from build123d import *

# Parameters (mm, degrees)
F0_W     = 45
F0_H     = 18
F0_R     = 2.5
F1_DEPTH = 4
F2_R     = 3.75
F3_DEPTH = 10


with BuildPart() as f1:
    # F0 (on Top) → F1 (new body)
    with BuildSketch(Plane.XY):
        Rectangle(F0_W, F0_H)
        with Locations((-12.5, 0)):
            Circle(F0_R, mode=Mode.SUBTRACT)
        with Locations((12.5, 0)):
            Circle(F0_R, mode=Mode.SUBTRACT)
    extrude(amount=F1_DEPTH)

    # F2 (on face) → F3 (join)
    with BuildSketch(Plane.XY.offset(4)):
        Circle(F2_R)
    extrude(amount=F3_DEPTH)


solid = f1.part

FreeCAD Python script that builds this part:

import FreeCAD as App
import Part
import Sketcher
from FreeCAD import Vector


def add_polygon(sketch, points):
    """Adds a closed chain of lines whose ends are joined by coincident constraints."""
    first, n = sketch.GeometryCount, len(points)
    for a, b in zip(points, points[1:] + points[:1]):
        sketch.addGeometry(Part.LineSegment(App.Vector(*a, 0), App.Vector(*b, 0)), False)
    for i in range(n):
        sketch.addConstraint(Sketcher.Constraint("Coincident", first + i, 2, first + (i + 1) % n, 1))

doc = App.newDocument("Part")
params = doc.addObject("Spreadsheet::Sheet", "Params")
for row, (alias, value) in enumerate([
    ("sketch1_diameter", "5 mm"),
    ("sketch1_width", "45 mm"),
    ("sketch1_height", "18 mm"),
    ("pad1_length", "4 mm"),
    ("sketch2_diameter", "7.5 mm"),
    ("pad2_length", "10 mm"),
], start=1):
    params.set(f"A{row}", alias)
    params.set(f"B{row}", "=" + value)
    params.setAlias(f"B{row}", alias)

body = doc.addObject("PartDesign::Body", "Body")

# Sketch on XY plane
sketch1 = doc.addObject("Sketcher::SketchObject", "Sketch")
body.addObject(sketch1)
sketch1.AttachmentSupport = (doc.XY_Plane, [""])
sketch1.MapMode = "FlatFace"
add_polygon(sketch1, [(-22.5, 9), (-22.5, -9), (22.5, -9), (22.5, 9)])  # lines 0-3
sketch1.addGeometry(Part.Circle(Vector(-12.5, 0, 0), Vector(0, 0, 1), 2.5), False)  # 4
sketch1.addGeometry(Part.Circle(Vector(12.5, 0, 0), Vector(0, 0, 1), 2.5), False)  # 5
sketch1.addConstraint([
    Sketcher.Constraint("Vertical", 0),
    Sketcher.Constraint("Horizontal", 1),
    Sketcher.Constraint("Vertical", 2),
    Sketcher.Constraint("Horizontal", 3),
    Sketcher.Constraint("Equal", 4, 5),
    Sketcher.Constraint("Symmetric", 4, 3, 5, 3, -1, 1),
    Sketcher.Constraint("Symmetric", 0, 2, 2, 2, -1, 1),
    Sketcher.Constraint("PointOnObject", 4, 3, -1),
    Sketcher.Constraint("Diameter", 4, 5.0),
    Sketcher.Constraint("DistanceX", 1, 1, 1, 2, 45.0),
    Sketcher.Constraint("DistanceY", 0, 2, 0, 1, 18.0),
    Sketcher.Constraint("DistanceX", 4, 3, 5, 3, 25.0),
])
sketch1.setExpression("Constraints[12]", "Params.sketch1_diameter")
sketch1.setExpression("Constraints[13]", "Params.sketch1_width")
sketch1.setExpression("Constraints[14]", "Params.sketch1_height")
pad1 = doc.addObject("PartDesign::Pad", "Pad")
body.addObject(pad1)
pad1.Profile = sketch1
pad1.setExpression("Length", "Params.pad1_length")

# Sketch on XY plane
sketch2 = doc.addObject("Sketcher::SketchObject", "Sketch001")
body.addObject(sketch2)
sketch2.AttachmentSupport = (doc.XY_Plane, [""])
sketch2.MapMode = "FlatFace"
sketch2.AttachmentOffset = App.Placement(Vector(0, 0, 4), App.Rotation())
sketch2.addGeometry(Part.Circle(Vector(0, 0, 0), Vector(0, 0, 1), 3.8), False)
sketch2.addConstraint([
    Sketcher.Constraint("Coincident", 0, 3, -1, 1),
    Sketcher.Constraint("Diameter", 0, 7.5),
])
sketch2.setExpression("Constraints[1]", "Params.sketch2_diameter")
pad2 = doc.addObject("PartDesign::Pad", "Pad001")
body.addObject(pad2)
pad2.Profile = sketch2
pad2.setExpression("Length", "Params.pad2_length")

doc.recompute()
